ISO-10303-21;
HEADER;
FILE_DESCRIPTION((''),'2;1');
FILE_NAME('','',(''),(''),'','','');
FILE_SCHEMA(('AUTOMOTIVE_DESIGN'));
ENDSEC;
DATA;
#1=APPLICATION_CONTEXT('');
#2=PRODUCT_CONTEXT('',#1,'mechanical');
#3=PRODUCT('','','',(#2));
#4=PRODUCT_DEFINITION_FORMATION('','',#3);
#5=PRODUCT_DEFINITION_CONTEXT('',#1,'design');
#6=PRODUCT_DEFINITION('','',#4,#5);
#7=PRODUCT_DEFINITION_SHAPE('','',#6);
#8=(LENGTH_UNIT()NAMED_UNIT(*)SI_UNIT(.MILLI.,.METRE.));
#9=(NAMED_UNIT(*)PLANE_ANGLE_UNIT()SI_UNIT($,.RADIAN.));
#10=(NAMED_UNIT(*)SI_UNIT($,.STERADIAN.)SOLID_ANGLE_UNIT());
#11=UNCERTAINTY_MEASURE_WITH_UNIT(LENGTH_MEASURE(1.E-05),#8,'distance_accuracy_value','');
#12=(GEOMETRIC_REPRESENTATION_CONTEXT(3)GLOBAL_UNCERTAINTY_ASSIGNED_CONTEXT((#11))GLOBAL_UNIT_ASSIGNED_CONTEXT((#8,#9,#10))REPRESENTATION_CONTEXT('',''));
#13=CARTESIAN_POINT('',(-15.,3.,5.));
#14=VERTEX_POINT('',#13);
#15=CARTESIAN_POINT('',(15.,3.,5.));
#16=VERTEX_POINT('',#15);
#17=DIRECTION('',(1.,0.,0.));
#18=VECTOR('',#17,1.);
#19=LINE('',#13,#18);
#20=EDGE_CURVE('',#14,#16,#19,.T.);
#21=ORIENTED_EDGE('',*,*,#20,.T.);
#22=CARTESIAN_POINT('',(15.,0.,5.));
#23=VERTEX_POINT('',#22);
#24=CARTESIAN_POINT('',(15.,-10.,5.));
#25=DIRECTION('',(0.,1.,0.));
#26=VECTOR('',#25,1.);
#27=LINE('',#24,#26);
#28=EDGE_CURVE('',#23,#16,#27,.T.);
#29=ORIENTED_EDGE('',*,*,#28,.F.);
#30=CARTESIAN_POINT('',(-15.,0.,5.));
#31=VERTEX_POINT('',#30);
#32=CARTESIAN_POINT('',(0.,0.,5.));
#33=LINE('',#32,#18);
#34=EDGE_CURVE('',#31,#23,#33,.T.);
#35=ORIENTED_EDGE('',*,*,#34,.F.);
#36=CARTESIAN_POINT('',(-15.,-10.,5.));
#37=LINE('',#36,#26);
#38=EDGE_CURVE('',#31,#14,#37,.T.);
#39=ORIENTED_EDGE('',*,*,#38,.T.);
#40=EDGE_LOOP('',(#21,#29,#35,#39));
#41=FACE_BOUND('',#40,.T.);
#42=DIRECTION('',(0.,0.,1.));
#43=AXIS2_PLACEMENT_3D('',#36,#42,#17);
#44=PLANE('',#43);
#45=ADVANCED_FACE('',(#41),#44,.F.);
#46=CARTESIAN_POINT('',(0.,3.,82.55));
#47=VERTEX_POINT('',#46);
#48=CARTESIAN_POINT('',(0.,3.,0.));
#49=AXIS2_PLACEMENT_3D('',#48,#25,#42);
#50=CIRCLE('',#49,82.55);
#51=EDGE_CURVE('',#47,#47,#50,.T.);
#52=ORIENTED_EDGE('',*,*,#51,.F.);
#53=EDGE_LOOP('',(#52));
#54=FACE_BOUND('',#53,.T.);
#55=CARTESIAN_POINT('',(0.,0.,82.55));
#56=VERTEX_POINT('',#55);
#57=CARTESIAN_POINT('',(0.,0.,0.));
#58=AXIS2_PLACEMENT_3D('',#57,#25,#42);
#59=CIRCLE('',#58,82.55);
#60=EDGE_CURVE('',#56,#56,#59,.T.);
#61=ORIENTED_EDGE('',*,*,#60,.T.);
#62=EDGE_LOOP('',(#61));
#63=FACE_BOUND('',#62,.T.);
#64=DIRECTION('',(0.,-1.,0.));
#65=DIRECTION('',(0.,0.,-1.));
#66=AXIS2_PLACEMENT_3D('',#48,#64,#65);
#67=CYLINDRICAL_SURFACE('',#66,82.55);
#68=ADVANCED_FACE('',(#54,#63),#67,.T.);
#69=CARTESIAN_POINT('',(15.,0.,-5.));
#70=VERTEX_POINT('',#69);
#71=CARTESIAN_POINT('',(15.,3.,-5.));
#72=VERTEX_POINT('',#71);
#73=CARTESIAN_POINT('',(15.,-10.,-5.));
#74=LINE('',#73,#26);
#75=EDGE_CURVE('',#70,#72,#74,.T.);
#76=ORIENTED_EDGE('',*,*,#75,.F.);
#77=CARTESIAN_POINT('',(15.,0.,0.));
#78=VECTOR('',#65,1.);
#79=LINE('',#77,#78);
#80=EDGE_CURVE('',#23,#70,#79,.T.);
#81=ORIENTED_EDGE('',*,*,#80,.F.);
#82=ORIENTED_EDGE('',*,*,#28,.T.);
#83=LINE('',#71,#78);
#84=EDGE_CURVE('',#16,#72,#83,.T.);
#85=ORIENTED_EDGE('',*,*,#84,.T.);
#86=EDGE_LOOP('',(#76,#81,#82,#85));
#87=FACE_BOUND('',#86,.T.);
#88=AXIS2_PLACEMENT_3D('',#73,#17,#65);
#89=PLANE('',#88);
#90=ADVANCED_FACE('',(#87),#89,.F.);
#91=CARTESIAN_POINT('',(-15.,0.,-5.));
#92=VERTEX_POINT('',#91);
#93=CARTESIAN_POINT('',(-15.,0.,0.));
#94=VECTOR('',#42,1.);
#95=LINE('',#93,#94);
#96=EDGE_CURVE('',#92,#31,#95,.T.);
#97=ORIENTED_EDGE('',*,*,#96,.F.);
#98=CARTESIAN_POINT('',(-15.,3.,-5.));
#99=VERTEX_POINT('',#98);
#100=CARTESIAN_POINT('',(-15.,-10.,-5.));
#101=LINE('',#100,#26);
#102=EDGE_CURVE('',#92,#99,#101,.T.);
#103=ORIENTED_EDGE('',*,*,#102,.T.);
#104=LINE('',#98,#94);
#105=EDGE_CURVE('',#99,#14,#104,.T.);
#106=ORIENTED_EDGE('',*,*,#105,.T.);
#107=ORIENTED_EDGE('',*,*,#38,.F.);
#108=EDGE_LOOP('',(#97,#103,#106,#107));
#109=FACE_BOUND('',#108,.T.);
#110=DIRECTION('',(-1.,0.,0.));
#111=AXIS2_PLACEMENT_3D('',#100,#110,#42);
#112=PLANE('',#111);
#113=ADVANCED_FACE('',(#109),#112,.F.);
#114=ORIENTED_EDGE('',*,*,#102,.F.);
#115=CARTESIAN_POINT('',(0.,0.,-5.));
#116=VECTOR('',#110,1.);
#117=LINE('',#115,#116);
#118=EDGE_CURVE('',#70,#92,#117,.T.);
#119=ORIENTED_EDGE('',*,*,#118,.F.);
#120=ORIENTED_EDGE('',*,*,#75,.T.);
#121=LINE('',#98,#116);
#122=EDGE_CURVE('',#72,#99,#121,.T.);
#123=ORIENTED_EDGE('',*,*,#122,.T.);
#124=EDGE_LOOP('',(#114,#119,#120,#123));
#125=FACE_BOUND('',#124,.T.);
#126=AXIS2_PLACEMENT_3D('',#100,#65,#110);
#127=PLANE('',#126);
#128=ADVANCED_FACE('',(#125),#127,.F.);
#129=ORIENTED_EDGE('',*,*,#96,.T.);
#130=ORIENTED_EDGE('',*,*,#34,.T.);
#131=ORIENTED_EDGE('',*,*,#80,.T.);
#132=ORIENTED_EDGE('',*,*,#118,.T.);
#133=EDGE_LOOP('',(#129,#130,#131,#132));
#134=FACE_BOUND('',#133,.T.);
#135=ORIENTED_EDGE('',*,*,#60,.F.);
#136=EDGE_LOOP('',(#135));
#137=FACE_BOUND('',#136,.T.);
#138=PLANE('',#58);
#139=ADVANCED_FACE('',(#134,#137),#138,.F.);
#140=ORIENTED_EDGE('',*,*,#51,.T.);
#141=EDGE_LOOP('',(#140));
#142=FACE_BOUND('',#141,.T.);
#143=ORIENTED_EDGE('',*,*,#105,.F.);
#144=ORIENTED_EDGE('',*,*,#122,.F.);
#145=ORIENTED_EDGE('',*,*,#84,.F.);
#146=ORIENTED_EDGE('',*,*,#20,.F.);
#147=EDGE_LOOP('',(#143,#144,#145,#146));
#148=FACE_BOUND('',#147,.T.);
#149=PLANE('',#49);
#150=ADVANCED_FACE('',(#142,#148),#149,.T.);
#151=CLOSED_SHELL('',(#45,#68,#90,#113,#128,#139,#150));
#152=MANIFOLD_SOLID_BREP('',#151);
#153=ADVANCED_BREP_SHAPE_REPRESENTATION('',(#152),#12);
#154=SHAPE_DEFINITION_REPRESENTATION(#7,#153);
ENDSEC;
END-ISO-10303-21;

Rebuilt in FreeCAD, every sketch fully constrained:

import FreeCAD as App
import Part
import Sketcher
Q = App.Units.Quantity

doc = App.newDocument("Part")
body = doc.addObject("PartDesign::Body", "Body")

sketch1 = body.newObject("Sketcher::SketchObject", "Sketch")
sketch1.AttachmentSupport = (doc.getObject("XZ_Plane"), [""])
sketch1.MapMode = "FlatFace"
sketch1.addGeometry(Part.Circle(App.Vector(0, 0, 0), App.Vector(0, 0, 1), 83), False)
sketch1.addConstraint([
    Sketcher.Constraint("Coincident", 0, 3, -1, 1),
    Sketcher.Constraint("Diameter", 0, Q("165.1 mm")),
])
pad1 = body.newObject("PartDesign::Pad", "Pad")
pad1.Profile = sketch1
pad1.Length = 3
pad1.Reversed = True

sketch2 = body.newObject("Sketcher::SketchObject", "Sketch001")
sketch2.AttachmentSupport = (doc.getObject("XZ_Plane"), [""])
sketch2.MapMode = "FlatFace"
sketch2.AttachmentOffset = App.Placement(App.Vector(0, 0, -3), App.Rotation())
sketch2.addGeometry([
    Part.LineSegment(App.Vector(-15, -5, 0), App.Vector(-15, 5, 0)),
    Part.LineSegment(App.Vector(-15, 5, 0), App.Vector(15, 5, 0)),
    Part.LineSegment(App.Vector(15, 5, 0), App.Vector(15, -5, 0)),
    Part.LineSegment(App.Vector(15, -5, 0), App.Vector(-15, -5, 0)),
], False)
sketch2.addConstraint([
    Sketcher.Constraint("Coincident", 0, 2, 1, 1),
    Sketcher.Constraint("Coincident", 1, 2, 2, 1),
    Sketcher.Constraint("Coincident", 2, 2, 3, 1),
    Sketcher.Constraint("Coincident", 3, 2, 0, 1),
    Sketcher.Constraint("Vertical", 0),
    Sketcher.Constraint("Horizontal", 1),
    Sketcher.Constraint("Vertical", 2),
    Sketcher.Constraint("Horizontal", 3),
    Sketcher.Constraint("Symmetric", 0, 2, 2, 2, -1, 1),
    Sketcher.Constraint("DistanceX", 1, 1, 1, 2, Q("30 mm")),
    Sketcher.Constraint("DistanceY", 0, 1, 0, 2, Q("10 mm")),
])
pocket1 = body.newObject("PartDesign::Pocket", "Pocket")
pocket1.Profile = sketch2
pocket1.Length = 13
pocket1.Reversed = True

doc.recompute()
